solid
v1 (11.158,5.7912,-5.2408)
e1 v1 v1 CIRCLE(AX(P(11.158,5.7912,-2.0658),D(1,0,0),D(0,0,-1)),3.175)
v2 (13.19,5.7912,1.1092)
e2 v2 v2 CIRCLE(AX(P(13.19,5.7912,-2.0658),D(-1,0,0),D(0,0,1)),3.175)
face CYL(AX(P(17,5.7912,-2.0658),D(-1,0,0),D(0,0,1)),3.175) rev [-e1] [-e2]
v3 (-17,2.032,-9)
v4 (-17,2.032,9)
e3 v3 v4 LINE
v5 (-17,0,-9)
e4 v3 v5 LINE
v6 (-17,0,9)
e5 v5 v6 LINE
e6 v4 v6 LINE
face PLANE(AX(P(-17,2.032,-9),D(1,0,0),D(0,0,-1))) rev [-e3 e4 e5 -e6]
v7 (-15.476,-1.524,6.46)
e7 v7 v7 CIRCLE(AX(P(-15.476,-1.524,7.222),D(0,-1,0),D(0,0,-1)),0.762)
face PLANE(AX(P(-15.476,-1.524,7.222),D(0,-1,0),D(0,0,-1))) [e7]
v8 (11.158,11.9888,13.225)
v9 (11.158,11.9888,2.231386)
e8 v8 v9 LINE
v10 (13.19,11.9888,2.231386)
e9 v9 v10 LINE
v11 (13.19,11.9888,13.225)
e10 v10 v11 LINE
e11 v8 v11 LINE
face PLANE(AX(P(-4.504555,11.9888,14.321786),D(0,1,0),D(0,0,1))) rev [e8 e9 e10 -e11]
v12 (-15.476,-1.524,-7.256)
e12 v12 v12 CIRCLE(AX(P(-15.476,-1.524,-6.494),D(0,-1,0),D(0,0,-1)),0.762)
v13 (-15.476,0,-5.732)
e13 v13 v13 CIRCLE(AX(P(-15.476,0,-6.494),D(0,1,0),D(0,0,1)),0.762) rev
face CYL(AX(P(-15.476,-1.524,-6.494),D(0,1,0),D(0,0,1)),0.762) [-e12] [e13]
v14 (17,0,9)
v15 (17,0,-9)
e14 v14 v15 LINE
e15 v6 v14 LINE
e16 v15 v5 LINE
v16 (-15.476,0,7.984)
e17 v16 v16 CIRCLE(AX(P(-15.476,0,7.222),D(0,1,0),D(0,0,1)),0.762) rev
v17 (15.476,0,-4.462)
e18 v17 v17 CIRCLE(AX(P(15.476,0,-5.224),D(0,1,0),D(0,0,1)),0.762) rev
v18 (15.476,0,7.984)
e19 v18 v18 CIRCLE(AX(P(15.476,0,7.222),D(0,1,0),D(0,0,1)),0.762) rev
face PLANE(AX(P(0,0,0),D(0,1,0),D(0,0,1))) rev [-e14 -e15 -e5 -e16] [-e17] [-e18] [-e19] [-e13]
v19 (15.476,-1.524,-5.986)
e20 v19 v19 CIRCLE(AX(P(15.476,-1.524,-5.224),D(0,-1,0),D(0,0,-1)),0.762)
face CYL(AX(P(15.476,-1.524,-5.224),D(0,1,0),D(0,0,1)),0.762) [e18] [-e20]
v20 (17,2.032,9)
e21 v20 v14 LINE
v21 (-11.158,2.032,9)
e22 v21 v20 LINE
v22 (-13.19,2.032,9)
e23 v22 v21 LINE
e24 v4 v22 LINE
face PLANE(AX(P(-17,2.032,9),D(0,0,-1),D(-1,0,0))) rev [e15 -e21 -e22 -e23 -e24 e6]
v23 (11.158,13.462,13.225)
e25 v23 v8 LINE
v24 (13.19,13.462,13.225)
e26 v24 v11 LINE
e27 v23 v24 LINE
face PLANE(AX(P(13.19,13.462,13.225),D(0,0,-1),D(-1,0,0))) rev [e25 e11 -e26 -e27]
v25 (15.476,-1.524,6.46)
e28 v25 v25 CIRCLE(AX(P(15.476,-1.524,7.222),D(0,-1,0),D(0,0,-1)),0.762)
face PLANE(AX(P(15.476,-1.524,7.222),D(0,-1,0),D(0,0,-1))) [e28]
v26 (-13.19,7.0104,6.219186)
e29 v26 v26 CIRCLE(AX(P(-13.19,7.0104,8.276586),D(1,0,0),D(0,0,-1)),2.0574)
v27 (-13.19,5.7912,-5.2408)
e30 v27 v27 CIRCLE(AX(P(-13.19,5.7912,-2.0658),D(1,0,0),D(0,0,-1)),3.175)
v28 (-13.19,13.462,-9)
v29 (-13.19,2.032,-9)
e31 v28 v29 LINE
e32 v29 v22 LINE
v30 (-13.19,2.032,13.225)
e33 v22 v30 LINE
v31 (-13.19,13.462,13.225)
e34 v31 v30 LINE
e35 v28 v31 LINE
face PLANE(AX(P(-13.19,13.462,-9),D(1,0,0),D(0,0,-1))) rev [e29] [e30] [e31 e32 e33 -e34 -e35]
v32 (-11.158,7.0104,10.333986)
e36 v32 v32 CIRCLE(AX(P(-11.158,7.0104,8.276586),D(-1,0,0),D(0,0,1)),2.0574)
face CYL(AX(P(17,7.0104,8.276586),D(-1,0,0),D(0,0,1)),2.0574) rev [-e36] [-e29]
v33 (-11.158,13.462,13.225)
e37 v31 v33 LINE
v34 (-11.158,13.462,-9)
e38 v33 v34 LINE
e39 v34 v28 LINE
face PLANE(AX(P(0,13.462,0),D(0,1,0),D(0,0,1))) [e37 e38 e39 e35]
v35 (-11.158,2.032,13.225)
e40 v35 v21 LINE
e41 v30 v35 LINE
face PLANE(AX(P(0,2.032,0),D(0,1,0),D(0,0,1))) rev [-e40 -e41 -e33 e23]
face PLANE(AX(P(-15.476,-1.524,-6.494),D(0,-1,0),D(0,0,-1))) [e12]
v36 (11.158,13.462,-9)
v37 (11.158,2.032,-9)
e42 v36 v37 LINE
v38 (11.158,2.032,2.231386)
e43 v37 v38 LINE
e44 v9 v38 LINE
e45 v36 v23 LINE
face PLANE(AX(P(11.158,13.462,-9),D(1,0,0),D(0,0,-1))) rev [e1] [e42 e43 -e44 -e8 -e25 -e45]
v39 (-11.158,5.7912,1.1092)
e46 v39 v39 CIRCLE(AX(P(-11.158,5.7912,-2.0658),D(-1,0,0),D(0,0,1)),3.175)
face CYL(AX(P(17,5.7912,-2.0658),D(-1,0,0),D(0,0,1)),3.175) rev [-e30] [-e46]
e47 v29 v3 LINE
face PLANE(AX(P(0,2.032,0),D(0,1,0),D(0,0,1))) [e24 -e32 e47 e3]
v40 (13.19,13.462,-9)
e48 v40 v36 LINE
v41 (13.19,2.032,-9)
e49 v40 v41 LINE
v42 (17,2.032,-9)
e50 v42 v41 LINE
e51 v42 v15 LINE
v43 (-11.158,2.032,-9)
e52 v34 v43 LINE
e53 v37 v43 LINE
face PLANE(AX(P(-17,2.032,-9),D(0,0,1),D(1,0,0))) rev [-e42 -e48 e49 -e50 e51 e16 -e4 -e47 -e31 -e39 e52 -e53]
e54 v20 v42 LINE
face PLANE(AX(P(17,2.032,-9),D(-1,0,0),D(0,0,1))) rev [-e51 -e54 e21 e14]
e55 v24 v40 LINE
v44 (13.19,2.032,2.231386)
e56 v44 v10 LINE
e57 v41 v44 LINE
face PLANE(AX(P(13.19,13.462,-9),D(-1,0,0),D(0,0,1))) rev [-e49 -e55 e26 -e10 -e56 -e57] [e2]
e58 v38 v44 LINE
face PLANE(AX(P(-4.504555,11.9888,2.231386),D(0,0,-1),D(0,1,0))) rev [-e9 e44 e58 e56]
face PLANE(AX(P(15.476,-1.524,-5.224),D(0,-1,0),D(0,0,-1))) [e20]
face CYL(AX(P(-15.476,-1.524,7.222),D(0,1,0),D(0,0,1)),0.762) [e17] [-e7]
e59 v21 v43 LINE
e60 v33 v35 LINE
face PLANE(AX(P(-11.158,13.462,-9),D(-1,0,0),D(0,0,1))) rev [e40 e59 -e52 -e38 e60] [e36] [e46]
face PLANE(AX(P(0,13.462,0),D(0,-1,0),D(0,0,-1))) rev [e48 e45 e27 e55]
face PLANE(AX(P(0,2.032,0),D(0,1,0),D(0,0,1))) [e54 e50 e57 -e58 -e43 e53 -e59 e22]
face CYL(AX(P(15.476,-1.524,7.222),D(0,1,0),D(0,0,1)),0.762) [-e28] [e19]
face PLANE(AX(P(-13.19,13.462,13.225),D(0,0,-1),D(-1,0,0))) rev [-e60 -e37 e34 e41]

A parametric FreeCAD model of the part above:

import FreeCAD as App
import Part
import Sketcher

V = App.Vector
Q = App.Units.Quantity

doc = App.newDocument("Part")
params = doc.addObject("Spreadsheet::Sheet", "Params")
for row, (alias, value) in enumerate([
    ("pad1_length", "0.08 in"),
    ("sketch2_diameter", "0.06 in"),
    ("pad2_length", "0.06 in"),
    ("sketch3_width", "0.08 in"),
    ("sketch3_height", "0.875 in"),
    ("pad3_length", "0.45 in"),
    ("sketch4_diameter", "0.25 in"),
    ("sketch4_diameter2", "0.162 in"),
    ("sketch5_width", "0.392 in"),
    ("sketch5_height", "0.476 in"),
    ("pocket2_length", "0.08 in"),
], start=1):
    params.set(f"A{row}", alias)
    params.set(f"B{row}", "=" + value)
    params.setAlias(f"B{row}", alias)

body = doc.addObject("PartDesign::Body", "Body")

sketch1 = body.newObject("Sketcher::SketchObject", "Sketch")
sketch1.AttachmentSupport = (doc.getObject("XZ_Plane"), [""])
sketch1.MapMode = "FlatFace"
sketch1.addGeometry(Part.LineSegment(V(-17, -9, 0), V(-17, 9, 0)), False)
sketch1.addGeometry(Part.LineSegment(V(-17, 9, 0), V(17, 9, 0)), False)
sketch1.addGeometry(Part.LineSegment(V(17, 9, 0), V(17, -9, 0)), False)
sketch1.addGeometry(Part.LineSegment(V(17, -9, 0), V(-17, -9, 0)), False)
sketch1.addConstraint(Sketcher.Constraint("Coincident", 0, 2, 1, 1))
sketch1.addConstraint(Sketcher.Constraint("Coincident", 1, 2, 2, 1))
sketch1.addConstraint(Sketcher.Constraint("Coincident", 2, 2, 3, 1))
sketch1.addConstraint(Sketcher.Constraint("Coincident", 3, 2, 0, 1))
sketch1.addConstraint(Sketcher.Constraint("Vertical", 0))
sketch1.addConstraint(Sketcher.Constraint("Horizontal", 1))
sketch1.addConstraint(Sketcher.Constraint("Vertical", 2))
sketch1.addConstraint(Sketcher.Constraint("Horizontal", 3))
sketch1.addConstraint(Sketcher.Constraint("Symmetric", 0, 2, 2, 2, -1, 1))
sketch1.addConstraint(Sketcher.Constraint("DistanceX", 1, 1, 1, 2, 34.0))
sketch1.addConstraint(Sketcher.Constraint("DistanceY", 0, 1, 0, 2, 18.0))
pad1 = body.newObject("PartDesign::Pad", "Pad")
pad1.Profile = sketch1
pad1.setExpression("Length", "Params.pad1_length")
pad1.Reversed = True

sketch2 = body.newObject("Sketcher::SketchObject", "Sketch001")
sketch2.AttachmentSupport = (doc.getObject("XZ_Plane"), [""])
sketch2.MapMode = "FlatFace"
sketch2.addGeometry(Part.Circle(V(15.476, -5.224, 0), V(0, 0, 1), 0.762), False)
sketch2.addGeometry(Part.Circle(V(15.476, 7.222, 0), V(0, 0, 1), 0.762), False)
sketch2.addGeometry(Part.Circle(V(-15.476, 7.222, 0), V(0, 0, 1), 0.762), False)
sketch2.addGeometry(Part.Circle(V(-15.476, -6.494, 0), V(0, 0, 1), 0.762), False)
sketch2.addConstraint(Sketcher.Constraint("Equal", 0, 1))
sketch2.addConstraint(Sketcher.Constraint("Equal", 1, 2))
sketch2.addConstraint(Sketcher.Constraint("Equal", 2, 3))
sketch2.addConstraint(Sketcher.Constraint("Symmetric", 1, 3, 2, 3, -2))
sketch2.addConstraint(Sketcher.Constraint("Vertical", 0, 3, 1, 3))
sketch2.addConstraint(Sketcher.Constraint("Vertical", 2, 3, 3, 3))
sketch2.addConstraint(Sketcher.Constraint("Diameter", 0, Q("0.06 in")))
sketch2.addConstraint(Sketcher.Constraint("DistanceY", 0, 3, 1, 3, Q("0.49 in")))
sketch2.addConstraint(Sketcher.Constraint("DistanceY", 3, 3, 2, 3, Q("0.54 in")))
sketch2.addConstraint(Sketcher.Constraint("DistanceX", -1, 1, 0, 3, 15.476))
sketch2.addConstraint(Sketcher.Constraint("DistanceY", 0, 3, -1, 1, 5.224))
sketch2.setExpression("Constraints[6]", "Params.sketch2_diameter")
pad2 = body.newObject("PartDesign::Pad", "Pad001")
pad2.Profile = sketch2
pad2.setExpression("Length", "Params.pad2_length")

sketch3 = body.newObject("Sketcher::SketchObject", "Sketch002")
sketch3.AttachmentSupport = (doc.getObject("XZ_Plane"), [""])
sketch3.MapMode = "FlatFace"
sketch3.AttachmentOffset = App.Placement(V(0, 0, -0.08 * 25.4), App.Rotation())
sketch3.addGeometry(Part.LineSegment(V(-13.19, -9, 0), V(-13.19, 13.225, 0)), False)
sketch3.addGeometry(Part.LineSegment(V(-13.19, 13.225, 0), V(-11.158, 13.225, 0)), False)
sketch3.addGeometry(Part.LineSegment(V(-11.158, 13.225, 0), V(-11.158, -9, 0)), False)
sketch3.addGeometry(Part.LineSegment(V(-11.158, -9, 0), V(-13.19, -9, 0)), False)
sketch3.addGeometry(Part.LineSegment(V(11.158, -9, 0), V(11.158, 13.225, 0)), False)
sketch3.addGeometry(Part.LineSegment(V(11.158, 13.225, 0), V(13.19, 13.225, 0)), False)
sketch3.addGeometry(Part.LineSegment(V(13.19, 13.225, 0), V(13.19, -9, 0)), False)
sketch3.addGeometry(Part.LineSegment(V(13.19, -9, 0), V(11.158, -9, 0)), False)
sketch3.addConstraint(Sketcher.Constraint("Coincident", 0, 2, 1, 1))
sketch3.addConstraint(Sketcher.Constraint("Coincident", 1, 2, 2, 1))
sketch3.addConstraint(Sketcher.Constraint("Coincident", 2, 2, 3, 1))
sketch3.addConstraint(Sketcher.Constraint("Coincident", 3, 2, 0, 1))
sketch3.addConstraint(Sketcher.Constraint("Coincident", 4, 2, 5, 1))
sketch3.addConstraint(Sketcher.Constraint("Coincident", 5, 2, 6, 1))
sketch3.addConstraint(Sketcher.Constraint("Coincident", 6, 2, 7, 1))
sketch3.addConstraint(Sketcher.Constraint("Coincident", 7, 2, 4, 1))
sketch3.addConstraint(Sketcher.Constraint("Vertical", 0))
sketch3.addConstraint(Sketcher.Constraint("Horizontal", 1))
sketch3.addConstraint(Sketcher.Constraint("Vertical", 2))
sketch3.addConstraint(Sketcher.Constraint("Horizontal", 3))
sketch3.addConstraint(Sketcher.Constraint("Vertical", 4))
sketch3.addConstraint(Sketcher.Constraint("Horizontal", 5))
sketch3.addConstraint(Sketcher.Constraint("Vertical", 6))
sketch3.addConstraint(Sketcher.Constraint("Horizontal", 7))
sketch3.addConstraint(Sketcher.Constraint("Symmetric", 1, 2, 4, 2, -2))
sketch3.addConstraint(Sketcher.Constraint("Symmetric", 3, 2, 6, 2, -2))
sketch3.addConstraint(Sketcher.Constraint("DistanceX", 1, 1, 1, 2, Q("0.08 in")))
sketch3.addConstraint(Sketcher.Constraint("DistanceY", 0, 1, 0, 2, Q("0.875 in")))
sketch3.addConstraint(Sketcher.Constraint("DistanceX", 0, 2, -1, 1, 13.19))
sketch3.addConstraint(Sketcher.Constraint("DistanceY", -1, 1, 0, 2, 13.225))
sketch3.setExpression("Constraints[18]", "Params.sketch3_width")
sketch3.setExpression("Constraints[19]", "Params.sketch3_height")
pad3 = body.newObject("PartDesign::Pad", "Pad002")
pad3.Profile = sketch3
pad3.setExpression("Length", "Params.pad3_length")
pad3.Reversed = True

sketch4 = body.newObject("Sketcher::SketchObject", "Sketch003")
sketch4.AttachmentSupport = (doc.getObject("YZ_Plane"), [""])
sketch4.MapMode = "FlatFace"
sketch4.AttachmentOffset = App.Placement(V(0, 0, -17), App.Rotation())
sketch4.addGeometry(Part.Circle(V(5.7912, -2.0658, 0), V(0, 0, 1), 3.175), False)
sketch4.addGeometry(Part.Circle(V(7.0104, 8.276586, 0), V(0, 0, 1), 2.0574), False)
sketch4.addConstraint(Sketcher.Constraint("Diameter", 0, Q("0.25 in")))
sketch4.addConstraint(Sketcher.Constraint("Diameter", 1, Q("0.162 in")))
sketch4.addConstraint(Sketcher.Constraint("DistanceX", -1, 1, 0, 3, Q("0.228 in")))
sketch4.addConstraint(Sketcher.Constraint("DistanceX", -1, 1, 1, 3, Q("0.276 in")))
sketch4.addConstraint(Sketcher.Constraint("DistanceY", 0, 3, -1, 1, 2.0658))
sketch4.addConstraint(Sketcher.Constraint("DistanceY", -1, 1, 1, 3, 8.276586))
sketch4.setExpression("Constraints[0]", "Params.sketch4_diameter")
sketch4.setExpression("Constraints[1]", "Params.sketch4_diameter2")
pocket1 = body.newObject("PartDesign::Pocket", "Pocket")
pocket1.Profile = sketch4
pocket1.Type = "ThroughAll"
pocket1.Midplane = True

sketch5 = body.newObject("Sketcher::SketchObject", "Sketch004")
sketch5.AttachmentSupport = (doc.getObject("YZ_Plane"), [""])
sketch5.MapMode = "FlatFace"
sketch5.AttachmentOffset = App.Placement(V(0, 0, 13.19), App.Rotation())
sketch5.addGeometry(Part.LineSegment(V(11.9888, 14.321786, 0), V(2.032, 14.321786, 0)), False)
sketch5.addGeometry(Part.LineSegment(V(2.032, 14.321786, 0), V(2.032, 2.231386, 0)), False)
sketch5.addGeometry(Part.LineSegment(V(2.032, 2.231386, 0), V(11.9888, 2.231386, 0)), False)
sketch5.addGeometry(Part.LineSegment(V(11.9888, 2.231386, 0), V(11.9888, 14.321786, 0)), False)
sketch5.addConstraint(Sketcher.Constraint("Coincident", 0, 2, 1, 1))
sketch5.addConstraint(Sketcher.Constraint("Coincident", 1, 2, 2, 1))
sketch5.addConstraint(Sketcher.Constraint("Coincident", 2, 2, 3, 1))
sketch5.addConstraint(Sketcher.Constraint("Coincident", 3, 2, 0, 1))
sketch5.addConstraint(Sketcher.Constraint("Horizontal", 0))
sketch5.addConstraint(Sketcher.Constraint("Vertical", 1))
sketch5.addConstraint(Sketcher.Constraint("Horizontal", 2))
sketch5.addConstraint(Sketcher.Constraint("Vertical", 3))
sketch5.addConstraint(Sketcher.Constraint("DistanceX", 0, 2, 0, 1, Q("0.392 in")))
sketch5.addConstraint(Sketcher.Constraint("DistanceY", 1, 2, 1, 1, Q("0.476 in")))
sketch5.addConstraint(Sketcher.Constraint("DistanceX", -1, 1, 0, 2, Q("0.08 in")))
sketch5.addConstraint(Sketcher.Constraint("DistanceY", -1, 1, 0, 2, 14.321786))
sketch5.setExpression("Constraints[8]", "Params.sketch5_width")
sketch5.setExpression("Constraints[9]", "Params.sketch5_height")
pocket2 = body.newObject("PartDesign::Pocket", "Pocket001")
pocket2.Profile = sketch5
pocket2.setExpression("Length", "Params.pocket2_length")

doc.recompute()
